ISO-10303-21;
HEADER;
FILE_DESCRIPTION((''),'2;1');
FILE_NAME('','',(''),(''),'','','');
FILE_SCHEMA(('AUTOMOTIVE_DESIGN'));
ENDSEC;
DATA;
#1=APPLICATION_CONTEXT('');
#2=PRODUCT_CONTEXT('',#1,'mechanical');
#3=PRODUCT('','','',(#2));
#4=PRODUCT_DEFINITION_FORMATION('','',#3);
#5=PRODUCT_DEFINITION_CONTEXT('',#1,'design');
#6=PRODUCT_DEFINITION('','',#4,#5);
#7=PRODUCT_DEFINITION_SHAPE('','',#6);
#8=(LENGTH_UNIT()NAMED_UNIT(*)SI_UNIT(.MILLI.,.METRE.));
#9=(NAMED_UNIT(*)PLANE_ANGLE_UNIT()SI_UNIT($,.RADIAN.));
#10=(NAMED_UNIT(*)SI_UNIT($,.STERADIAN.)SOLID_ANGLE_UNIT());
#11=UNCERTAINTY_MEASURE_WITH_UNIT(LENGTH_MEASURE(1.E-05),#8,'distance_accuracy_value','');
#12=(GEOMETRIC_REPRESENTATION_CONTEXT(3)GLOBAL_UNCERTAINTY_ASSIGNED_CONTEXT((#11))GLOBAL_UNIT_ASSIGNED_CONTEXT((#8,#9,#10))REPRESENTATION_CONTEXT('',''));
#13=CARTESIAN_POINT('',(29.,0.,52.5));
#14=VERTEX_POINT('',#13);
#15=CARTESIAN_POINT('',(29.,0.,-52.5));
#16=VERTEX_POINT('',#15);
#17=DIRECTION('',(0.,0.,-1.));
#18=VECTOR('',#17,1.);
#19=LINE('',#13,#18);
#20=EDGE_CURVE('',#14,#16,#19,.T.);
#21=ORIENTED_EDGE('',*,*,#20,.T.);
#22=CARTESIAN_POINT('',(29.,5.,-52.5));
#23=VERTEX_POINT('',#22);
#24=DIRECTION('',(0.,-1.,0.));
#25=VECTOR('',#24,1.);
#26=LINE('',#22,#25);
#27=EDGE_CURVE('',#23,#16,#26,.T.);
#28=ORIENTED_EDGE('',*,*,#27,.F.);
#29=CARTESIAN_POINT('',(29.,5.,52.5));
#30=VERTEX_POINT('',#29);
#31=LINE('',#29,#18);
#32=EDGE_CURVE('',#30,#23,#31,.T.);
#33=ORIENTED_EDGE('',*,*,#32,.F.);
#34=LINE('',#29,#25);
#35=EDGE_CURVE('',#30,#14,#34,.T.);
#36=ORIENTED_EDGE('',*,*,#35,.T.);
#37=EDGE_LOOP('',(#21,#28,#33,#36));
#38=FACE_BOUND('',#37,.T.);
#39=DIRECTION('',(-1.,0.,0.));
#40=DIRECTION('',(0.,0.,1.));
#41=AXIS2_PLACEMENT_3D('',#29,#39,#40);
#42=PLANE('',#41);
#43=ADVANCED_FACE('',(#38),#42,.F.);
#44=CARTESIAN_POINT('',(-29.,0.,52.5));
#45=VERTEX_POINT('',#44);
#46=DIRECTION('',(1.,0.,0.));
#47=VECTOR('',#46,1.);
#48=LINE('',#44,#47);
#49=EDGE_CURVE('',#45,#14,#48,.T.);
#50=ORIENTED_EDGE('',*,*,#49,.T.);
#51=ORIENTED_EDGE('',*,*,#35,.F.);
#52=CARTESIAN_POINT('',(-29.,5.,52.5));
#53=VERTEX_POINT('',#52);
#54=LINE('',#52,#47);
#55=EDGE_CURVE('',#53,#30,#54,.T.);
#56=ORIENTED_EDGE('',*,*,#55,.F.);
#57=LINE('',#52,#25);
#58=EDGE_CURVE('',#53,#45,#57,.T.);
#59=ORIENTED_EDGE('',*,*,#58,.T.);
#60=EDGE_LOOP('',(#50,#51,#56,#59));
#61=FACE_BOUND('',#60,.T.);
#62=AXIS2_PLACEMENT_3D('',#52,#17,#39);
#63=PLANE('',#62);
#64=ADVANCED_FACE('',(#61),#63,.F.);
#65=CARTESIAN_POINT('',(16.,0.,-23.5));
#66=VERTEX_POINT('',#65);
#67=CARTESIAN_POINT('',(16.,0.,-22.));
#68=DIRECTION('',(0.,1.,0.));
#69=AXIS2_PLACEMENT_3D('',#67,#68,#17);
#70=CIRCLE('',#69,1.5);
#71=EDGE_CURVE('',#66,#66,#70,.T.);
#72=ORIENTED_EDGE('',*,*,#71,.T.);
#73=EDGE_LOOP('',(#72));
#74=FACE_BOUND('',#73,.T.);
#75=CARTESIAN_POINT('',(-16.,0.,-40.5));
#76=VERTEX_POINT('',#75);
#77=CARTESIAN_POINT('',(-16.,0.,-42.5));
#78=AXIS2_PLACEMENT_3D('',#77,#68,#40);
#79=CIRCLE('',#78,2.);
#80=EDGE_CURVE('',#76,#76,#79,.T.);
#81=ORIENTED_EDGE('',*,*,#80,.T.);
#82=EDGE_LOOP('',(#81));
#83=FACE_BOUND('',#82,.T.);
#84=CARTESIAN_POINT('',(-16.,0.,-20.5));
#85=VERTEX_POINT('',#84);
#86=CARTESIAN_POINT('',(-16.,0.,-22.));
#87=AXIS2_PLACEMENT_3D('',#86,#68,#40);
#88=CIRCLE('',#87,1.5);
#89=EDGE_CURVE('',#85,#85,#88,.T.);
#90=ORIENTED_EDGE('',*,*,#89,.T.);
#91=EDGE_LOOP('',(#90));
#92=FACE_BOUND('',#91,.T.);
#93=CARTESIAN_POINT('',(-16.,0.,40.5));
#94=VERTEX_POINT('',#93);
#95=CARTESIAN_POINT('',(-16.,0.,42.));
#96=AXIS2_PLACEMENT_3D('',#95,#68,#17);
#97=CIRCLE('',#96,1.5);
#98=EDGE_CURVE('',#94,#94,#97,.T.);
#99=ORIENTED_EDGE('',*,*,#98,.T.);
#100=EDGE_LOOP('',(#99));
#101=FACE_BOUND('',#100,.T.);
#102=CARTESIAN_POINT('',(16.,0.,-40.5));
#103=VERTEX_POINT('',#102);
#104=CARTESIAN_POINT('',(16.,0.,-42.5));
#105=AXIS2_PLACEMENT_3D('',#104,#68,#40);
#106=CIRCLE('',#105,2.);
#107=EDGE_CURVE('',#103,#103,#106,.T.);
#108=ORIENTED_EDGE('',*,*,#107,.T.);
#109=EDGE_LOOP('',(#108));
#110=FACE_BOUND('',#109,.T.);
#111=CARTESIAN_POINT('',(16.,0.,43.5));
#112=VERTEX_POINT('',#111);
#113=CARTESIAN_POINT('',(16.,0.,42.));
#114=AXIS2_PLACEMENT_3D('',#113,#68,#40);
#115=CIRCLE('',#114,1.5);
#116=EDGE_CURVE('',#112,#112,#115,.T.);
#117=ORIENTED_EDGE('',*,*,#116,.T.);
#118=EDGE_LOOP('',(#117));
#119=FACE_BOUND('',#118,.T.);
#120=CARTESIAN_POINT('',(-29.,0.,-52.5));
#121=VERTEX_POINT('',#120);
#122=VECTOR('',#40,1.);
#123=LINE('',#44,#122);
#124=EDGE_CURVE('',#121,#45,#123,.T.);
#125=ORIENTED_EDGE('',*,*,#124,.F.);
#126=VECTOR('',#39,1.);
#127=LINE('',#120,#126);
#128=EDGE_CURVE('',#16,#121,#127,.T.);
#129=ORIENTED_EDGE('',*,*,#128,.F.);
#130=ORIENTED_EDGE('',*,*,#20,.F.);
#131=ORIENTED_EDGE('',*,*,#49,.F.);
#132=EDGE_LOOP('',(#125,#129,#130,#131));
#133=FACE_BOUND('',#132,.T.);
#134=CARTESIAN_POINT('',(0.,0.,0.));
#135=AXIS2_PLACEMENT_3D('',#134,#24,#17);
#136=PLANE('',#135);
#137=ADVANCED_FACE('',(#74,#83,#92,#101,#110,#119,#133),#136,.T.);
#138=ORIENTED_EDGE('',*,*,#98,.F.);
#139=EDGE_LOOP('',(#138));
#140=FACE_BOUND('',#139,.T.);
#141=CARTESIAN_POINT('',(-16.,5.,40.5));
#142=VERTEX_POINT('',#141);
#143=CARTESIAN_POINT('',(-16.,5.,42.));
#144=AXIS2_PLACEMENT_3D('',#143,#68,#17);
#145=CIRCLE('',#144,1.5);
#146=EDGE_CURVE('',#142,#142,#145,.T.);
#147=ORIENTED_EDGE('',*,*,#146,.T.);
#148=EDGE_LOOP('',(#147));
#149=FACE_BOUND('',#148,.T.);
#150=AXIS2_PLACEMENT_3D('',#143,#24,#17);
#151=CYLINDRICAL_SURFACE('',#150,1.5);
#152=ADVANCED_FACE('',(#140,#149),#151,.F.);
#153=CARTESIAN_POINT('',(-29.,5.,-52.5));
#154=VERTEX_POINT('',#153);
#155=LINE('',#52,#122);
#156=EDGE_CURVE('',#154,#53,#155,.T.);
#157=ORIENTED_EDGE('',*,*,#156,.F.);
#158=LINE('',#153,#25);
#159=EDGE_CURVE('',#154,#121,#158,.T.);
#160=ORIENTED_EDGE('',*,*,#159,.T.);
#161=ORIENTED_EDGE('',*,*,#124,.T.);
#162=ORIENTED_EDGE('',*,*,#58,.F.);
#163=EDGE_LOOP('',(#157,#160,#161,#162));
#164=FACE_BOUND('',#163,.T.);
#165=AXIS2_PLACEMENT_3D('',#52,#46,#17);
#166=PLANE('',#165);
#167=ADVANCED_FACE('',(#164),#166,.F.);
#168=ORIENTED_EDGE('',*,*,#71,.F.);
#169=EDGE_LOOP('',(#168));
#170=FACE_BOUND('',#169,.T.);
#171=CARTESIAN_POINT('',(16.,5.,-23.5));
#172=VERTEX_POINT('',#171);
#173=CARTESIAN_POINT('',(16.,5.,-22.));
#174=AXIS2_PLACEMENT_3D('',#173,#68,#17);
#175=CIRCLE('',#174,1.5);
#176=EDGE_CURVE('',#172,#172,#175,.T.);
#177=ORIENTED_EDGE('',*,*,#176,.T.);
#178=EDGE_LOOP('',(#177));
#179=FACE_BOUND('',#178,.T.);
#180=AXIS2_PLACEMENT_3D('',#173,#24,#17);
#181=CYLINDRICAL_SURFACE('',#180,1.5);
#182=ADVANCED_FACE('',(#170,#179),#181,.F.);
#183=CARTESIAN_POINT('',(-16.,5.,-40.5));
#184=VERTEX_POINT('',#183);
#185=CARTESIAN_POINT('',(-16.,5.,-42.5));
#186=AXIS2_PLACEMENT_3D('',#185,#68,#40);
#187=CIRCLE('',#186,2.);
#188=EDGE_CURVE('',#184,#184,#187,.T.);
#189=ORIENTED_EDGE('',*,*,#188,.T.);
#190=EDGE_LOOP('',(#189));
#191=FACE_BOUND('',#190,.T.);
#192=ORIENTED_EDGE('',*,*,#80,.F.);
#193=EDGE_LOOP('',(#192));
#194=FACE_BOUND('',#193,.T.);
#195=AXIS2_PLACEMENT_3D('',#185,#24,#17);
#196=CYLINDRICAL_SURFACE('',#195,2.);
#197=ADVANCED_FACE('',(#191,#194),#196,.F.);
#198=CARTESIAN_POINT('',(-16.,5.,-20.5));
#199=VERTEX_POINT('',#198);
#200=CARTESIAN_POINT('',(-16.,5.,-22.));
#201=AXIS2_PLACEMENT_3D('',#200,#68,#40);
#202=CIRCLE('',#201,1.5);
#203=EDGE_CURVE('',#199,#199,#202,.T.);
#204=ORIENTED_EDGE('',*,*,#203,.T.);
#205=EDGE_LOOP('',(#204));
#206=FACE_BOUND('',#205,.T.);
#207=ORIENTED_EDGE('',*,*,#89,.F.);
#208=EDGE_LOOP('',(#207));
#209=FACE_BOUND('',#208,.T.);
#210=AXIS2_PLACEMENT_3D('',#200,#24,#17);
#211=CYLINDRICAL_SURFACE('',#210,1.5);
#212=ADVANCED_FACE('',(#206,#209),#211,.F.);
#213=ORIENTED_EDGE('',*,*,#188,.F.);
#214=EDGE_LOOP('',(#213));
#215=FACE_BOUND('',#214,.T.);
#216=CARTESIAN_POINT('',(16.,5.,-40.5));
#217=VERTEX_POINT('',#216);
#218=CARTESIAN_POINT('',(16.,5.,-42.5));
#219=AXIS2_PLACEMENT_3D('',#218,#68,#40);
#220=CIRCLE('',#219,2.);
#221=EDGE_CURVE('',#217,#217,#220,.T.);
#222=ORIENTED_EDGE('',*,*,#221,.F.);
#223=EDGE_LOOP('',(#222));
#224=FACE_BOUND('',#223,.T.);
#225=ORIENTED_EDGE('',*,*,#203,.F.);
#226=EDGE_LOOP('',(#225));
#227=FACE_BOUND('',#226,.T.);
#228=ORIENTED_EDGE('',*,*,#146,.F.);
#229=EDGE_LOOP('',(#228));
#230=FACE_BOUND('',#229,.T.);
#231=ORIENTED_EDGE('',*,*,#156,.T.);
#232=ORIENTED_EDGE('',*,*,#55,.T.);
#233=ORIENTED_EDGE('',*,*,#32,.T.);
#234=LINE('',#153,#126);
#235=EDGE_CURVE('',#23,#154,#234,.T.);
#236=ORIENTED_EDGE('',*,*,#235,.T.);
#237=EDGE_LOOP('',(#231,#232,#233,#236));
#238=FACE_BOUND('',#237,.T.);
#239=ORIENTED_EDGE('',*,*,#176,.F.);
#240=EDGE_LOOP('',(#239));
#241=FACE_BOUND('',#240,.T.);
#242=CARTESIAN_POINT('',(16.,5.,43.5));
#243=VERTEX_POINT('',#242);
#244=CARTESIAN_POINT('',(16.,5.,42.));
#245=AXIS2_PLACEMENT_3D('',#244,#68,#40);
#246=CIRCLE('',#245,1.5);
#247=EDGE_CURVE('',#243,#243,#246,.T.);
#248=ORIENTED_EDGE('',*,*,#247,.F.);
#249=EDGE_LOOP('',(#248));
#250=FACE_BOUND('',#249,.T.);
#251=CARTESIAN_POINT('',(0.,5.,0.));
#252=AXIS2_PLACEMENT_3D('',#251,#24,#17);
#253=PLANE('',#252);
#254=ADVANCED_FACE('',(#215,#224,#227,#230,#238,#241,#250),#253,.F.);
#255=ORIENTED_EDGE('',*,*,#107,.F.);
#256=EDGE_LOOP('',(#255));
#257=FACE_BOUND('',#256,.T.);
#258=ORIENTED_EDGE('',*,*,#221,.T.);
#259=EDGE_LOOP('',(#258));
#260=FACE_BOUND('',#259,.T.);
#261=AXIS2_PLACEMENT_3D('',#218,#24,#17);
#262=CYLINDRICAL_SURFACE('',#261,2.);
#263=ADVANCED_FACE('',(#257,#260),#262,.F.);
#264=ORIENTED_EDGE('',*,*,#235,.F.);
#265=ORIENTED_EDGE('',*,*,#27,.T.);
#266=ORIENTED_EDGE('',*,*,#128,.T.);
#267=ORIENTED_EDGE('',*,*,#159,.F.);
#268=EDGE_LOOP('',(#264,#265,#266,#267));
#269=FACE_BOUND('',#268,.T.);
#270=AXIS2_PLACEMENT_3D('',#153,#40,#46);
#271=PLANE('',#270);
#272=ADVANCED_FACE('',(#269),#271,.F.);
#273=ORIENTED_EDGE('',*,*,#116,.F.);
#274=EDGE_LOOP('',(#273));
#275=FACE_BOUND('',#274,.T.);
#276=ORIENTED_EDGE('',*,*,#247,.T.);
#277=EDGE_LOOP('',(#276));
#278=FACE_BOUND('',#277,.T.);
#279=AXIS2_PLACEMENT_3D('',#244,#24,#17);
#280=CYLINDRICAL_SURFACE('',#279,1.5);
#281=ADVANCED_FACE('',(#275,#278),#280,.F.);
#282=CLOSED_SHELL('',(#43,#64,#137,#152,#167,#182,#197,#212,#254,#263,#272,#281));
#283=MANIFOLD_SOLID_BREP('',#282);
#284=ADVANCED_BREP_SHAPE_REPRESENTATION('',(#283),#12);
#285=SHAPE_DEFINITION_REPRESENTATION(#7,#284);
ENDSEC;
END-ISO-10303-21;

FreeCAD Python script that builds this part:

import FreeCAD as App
import Part
import Sketcher
from FreeCAD import Vector
Q = App.Units.Quantity

doc = App.newDocument("Part")
params = doc.addObject("Spreadsheet::Sheet", "Params")
for row, (alias, value) in enumerate([
    ("sketch1_diameter", "3 mm"),
    ("sketch1_diameter2", "4 mm"),
    ("sketch1_width", "58 mm"),
    ("sketch1_height", "105 mm"),
    ("pad1_length", "5 mm"),
], start=1):
    params.set(f"A{row}", alias)
    params.set(f"B{row}", "=" + value)
    params.setAlias(f"B{row}", alias)

body = doc.addObject("PartDesign::Body", "Body")

sketch1 = doc.addObject("Sketcher::SketchObject", "Sketch")
body.addObject(sketch1)
sketch1.AttachmentSupport = (doc.XZ_Plane, [""])
sketch1.MapMode = "FlatFace"
sketch1.addGeometry([
    Part.LineSegment(Vector(-29, -52.5, 0), Vector(-29, 52.5, 0)),
    Part.LineSegment(Vector(-29, 52.5, 0), Vector(29, 52.5, 0)),
    Part.LineSegment(Vector(29, 52.5, 0), Vector(29, -52.5, 0)),
    Part.LineSegment(Vector(29, -52.5, 0), Vector(-29, -52.5, 0)),
    Part.Circle(Vector(-16, 42, 0), Vector(0, 0, 1), 1.5),
    Part.Circle(Vector(16, 42, 0), Vector(0, 0, 1), 1.5),
    Part.Circle(Vector(-16, -22, 0), Vector(0, 0, 1), 1.5),
    Part.Circle(Vector(-16, -42.5, 0), Vector(0, 0, 1), 2),
    Part.Circle(Vector(16, -22, 0), Vector(0, 0, 1), 1.5),
    Part.Circle(Vector(16, -42.5, 0), Vector(0, 0, 1), 2),
], False)
sketch1.addConstraint([
    Sketcher.Constraint("Coincident", 0, 2, 1, 1),
    Sketcher.Constraint("Coincident", 1, 2, 2, 1),
    Sketcher.Constraint("Coincident", 2, 2, 3, 1),
    Sketcher.Constraint("Coincident", 3, 2, 0, 1),
    Sketcher.Constraint("Vertical", 0),
    Sketcher.Constraint("Horizontal", 1),
    Sketcher.Constraint("Vertical", 2),
    Sketcher.Constraint("Horizontal", 3),
    Sketcher.Constraint("Equal", 4, 5),
    Sketcher.Constraint("Equal", 5, 6),
    Sketcher.Constraint("Equal", 6, 8),
    Sketcher.Constraint("Equal", 7, 9),
    Sketcher.Constraint("Symmetric", 0, 2, 2, 2, -1, 1),
    Sketcher.Constraint("Symmetric", 4, 3, 5, 3, -2),
    Sketcher.Constraint("Symmetric", 6, 3, 8, 3, -2),
    Sketcher.Constraint("Symmetric", 7, 3, 9, 3, -2),
    Sketcher.Constraint("Vertical", 4, 3, 6, 3),
    Sketcher.Constraint("Vertical", 6, 3, 7, 3),
    Sketcher.Constraint("Diameter", 4, Q("3 mm")),
    Sketcher.Constraint("Diameter", 7, Q("4 mm")),
    Sketcher.Constraint("DistanceX", 1, 1, 1, 2, Q("58 mm")),
    Sketcher.Constraint("DistanceY", 0, 1, 0, 2, Q("105 mm")),
    Sketcher.Constraint("DistanceX", 4, 3, -1, 1, Q("16 mm")),
    Sketcher.Constraint("DistanceY", -1, 1, 4, 3, Q("42 mm")),
    Sketcher.Constraint("DistanceY", 6, 3, -1, 1, Q("22 mm")),
    Sketcher.Constraint("DistanceY", 7, 3, 0, 2, Q("95 mm")),
])
sketch1.setExpression("Constraints[18]", "Params.sketch1_diameter")
sketch1.setExpression("Constraints[19]", "Params.sketch1_diameter2")
sketch1.setExpression("Constraints[20]", "Params.sketch1_width")
sketch1.setExpression("Constraints[21]", "Params.sketch1_height")
pad1 = doc.addObject("PartDesign::Pad", "Pad")
body.addObject(pad1)
pad1.Profile = sketch1
pad1.setExpression("Length", "Params.pad1_length")
pad1.Reversed = True

doc.recompute()
